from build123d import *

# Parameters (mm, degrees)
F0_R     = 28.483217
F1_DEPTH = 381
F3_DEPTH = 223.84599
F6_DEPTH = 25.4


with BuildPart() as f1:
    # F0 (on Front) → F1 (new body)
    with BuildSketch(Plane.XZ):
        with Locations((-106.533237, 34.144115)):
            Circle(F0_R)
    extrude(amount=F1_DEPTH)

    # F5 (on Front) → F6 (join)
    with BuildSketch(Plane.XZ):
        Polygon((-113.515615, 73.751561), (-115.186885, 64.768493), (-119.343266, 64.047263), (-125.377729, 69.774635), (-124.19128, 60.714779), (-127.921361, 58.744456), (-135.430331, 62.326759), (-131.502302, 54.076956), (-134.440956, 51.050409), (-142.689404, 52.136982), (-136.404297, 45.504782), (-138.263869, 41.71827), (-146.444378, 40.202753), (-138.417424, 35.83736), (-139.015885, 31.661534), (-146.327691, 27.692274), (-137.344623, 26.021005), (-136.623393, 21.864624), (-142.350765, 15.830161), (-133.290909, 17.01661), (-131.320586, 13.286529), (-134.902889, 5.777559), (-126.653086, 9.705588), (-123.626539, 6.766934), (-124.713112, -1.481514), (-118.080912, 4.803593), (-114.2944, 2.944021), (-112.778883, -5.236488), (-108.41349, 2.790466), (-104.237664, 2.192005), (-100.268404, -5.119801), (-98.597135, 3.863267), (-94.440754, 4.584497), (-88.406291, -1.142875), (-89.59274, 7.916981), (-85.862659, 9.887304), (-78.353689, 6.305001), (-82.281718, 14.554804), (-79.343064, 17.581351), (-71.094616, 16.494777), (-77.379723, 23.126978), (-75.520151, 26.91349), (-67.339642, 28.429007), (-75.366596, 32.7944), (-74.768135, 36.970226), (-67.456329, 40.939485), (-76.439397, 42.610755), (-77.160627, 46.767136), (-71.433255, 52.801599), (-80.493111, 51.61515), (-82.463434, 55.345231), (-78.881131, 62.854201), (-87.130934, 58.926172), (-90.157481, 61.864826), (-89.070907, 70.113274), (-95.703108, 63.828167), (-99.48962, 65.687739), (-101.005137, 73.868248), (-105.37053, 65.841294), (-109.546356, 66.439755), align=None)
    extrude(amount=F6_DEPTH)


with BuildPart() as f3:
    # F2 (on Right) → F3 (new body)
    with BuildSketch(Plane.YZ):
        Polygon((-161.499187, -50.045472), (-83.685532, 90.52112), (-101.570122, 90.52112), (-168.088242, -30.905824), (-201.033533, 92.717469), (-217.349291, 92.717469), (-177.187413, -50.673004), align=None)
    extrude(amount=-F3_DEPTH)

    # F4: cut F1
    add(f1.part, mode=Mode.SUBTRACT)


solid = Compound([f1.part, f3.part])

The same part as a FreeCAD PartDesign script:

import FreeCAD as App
import Part
import Sketcher
Q = App.Units.Quantity

doc = App.newDocument("Part")
body = doc.addObject("PartDesign::Body", "Body")

sketch1 = doc.addObject("Sketcher::SketchObject", "Sketch")
body.addObject(sketch1)
sketch1.AttachmentSupport = (doc.XZ_Plane, [""])
sketch1.MapMode = "FlatFace"
sketch1.addGeometry(Part.Circle(App.Vector(-106.533237, 34.144115, 0), App.Vector(0, 0, 1), 28.483217), False)
sketch1.addConstraint(Sketcher.Constraint("Diameter", 0, 56.966434))
sketch1.addConstraint(Sketcher.Constraint("DistanceX", 0, 3, -1, 1, 106.533237))
sketch1.addConstraint(Sketcher.Constraint("DistanceY", -1, 1, 0, 3, 34.144115))
pad1 = doc.addObject("PartDesign::Pad", "Pad")
body.addObject(pad1)
pad1.Profile = sketch1
pad1.Length = Q("15 in")

sketch2 = doc.addObject("Sketcher::SketchObject", "Sketch001")
body.addObject(sketch2)
sketch2.AttachmentSupport = (doc.XZ_Plane, [""])
sketch2.MapMode = "FlatFace"
sketch2.addGeometry(Part.LineSegment(App.Vector(-113.515615, 73.751561, 0), App.Vector(-115.186885, 64.768493, 0)), False)
sketch2.addGeometry(Part.LineSegment(App.Vector(-115.186885, 64.768493, 0), App.Vector(-119.343266, 64.047263, 0)), False)
sketch2.addGeometry(Part.LineSegment(App.Vector(-119.343266, 64.047263, 0), App.Vector(-125.377729, 69.774635, 0)), False)
sketch2.addGeometry(Part.LineSegment(App.Vector(-125.377729, 69.774635, 0), App.Vector(-124.19128, 60.714779, 0)), False)
sketch2.addGeometry(Part.LineSegment(App.Vector(-124.19128, 60.714779, 0), App.Vector(-127.921361, 58.744456, 0)), False)
sketch2.addGeometry(Part.LineSegment(App.Vector(-127.921361, 58.744456, 0), App.Vector(-135.430331, 62.326759, 0)), False)
sketch2.addGeometry(Part.LineSegment(App.Vector(-135.430331, 62.326759, 0), App.Vector(-131.502302, 54.076956, 0)), False)
sketch2.addGeometry(Part.LineSegment(App.Vector(-131.502302, 54.076956, 0), App.Vector(-134.440956, 51.050409, 0)), False)
sketch2.addGeometry(Part.LineSegment(App.Vector(-134.440956, 51.050409, 0), App.Vector(-142.689404, 52.136982, 0)), False)
sketch2.addGeometry(Part.LineSegment(App.Vector(-142.689404, 52.136982, 0), App.Vector(-136.404297, 45.504782, 0)), False)
sketch2.addGeometry(Part.LineSegment(App.Vector(-136.404297, 45.504782, 0), App.Vector(-138.263869, 41.71827, 0)), False)
sketch2.addGeometry(Part.LineSegment(App.Vector(-138.263869, 41.71827, 0), App.Vector(-146.444378, 40.202753, 0)), False)
sketch2.addGeometry(Part.LineSegment(App.Vector(-146.444378, 40.202753, 0), App.Vector(-138.417424, 35.83736, 0)), False)
sketch2.addGeometry(Part.LineSegment(App.Vector(-138.417424, 35.83736, 0), App.Vector(-139.015885, 31.661534, 0)), False)
sketch2.addGeometry(Part.LineSegment(App.Vector(-139.015885, 31.661534, 0), App.Vector(-146.327691, 27.692274, 0)), False)
sketch2.addGeometry(Part.LineSegment(App.Vector(-146.327691, 27.692274, 0), App.Vector(-137.344623, 26.021005, 0)), False)
sketch2.addGeometry(Part.LineSegment(App.Vector(-137.344623, 26.021005, 0), App.Vector(-136.623393, 21.864624, 0)), False)
sketch2.addGeometry(Part.LineSegment(App.Vector(-136.623393, 21.864624, 0), App.Vector(-142.350765, 15.830161, 0)), False)
sketch2.addGeometry(Part.LineSegment(App.Vector(-142.350765, 15.830161, 0), App.Vector(-133.290909, 17.01661, 0)), False)
sketch2.addGeometry(Part.LineSegment(App.Vector(-133.290909, 17.01661, 0), App.Vector(-131.320586, 13.286529, 0)), False)
sketch2.addGeometry(Part.LineSegment(App.Vector(-131.320586, 13.286529, 0), App.Vector(-134.902889, 5.777559, 0)), False)
sketch2.addGeometry(Part.LineSegment(App.Vector(-134.902889, 5.777559, 0), App.Vector(-126.653086, 9.705588, 0)), False)
sketch2.addGeometry(Part.LineSegment(App.Vector(-126.653086, 9.705588, 0), App.Vector(-123.626539, 6.766934, 0)), False)
sketch2.addGeometry(Part.LineSegment(App.Vector(-123.626539, 6.766934, 0), App.Vector(-124.713112, -1.481514, 0)), False)
sketch2.addGeometry(Part.LineSegment(App.Vector(-124.713112, -1.481514, 0), App.Vector(-118.080912, 4.803593, 0)), False)
sketch2.addGeometry(Part.LineSegment(App.Vector(-118.080912, 4.803593, 0), App.Vector(-114.2944, 2.944021, 0)), False)
sketch2.addGeometry(Part.LineSegment(App.Vector(-114.2944, 2.944021, 0), App.Vector(-112.778883, -5.236488, 0)), False)
sketch2.addGeometry(Part.LineSegment(App.Vector(-112.778883, -5.236488, 0), App.Vector(-108.41349, 2.790466, 0)), False)
sketch2.addGeometry(Part.LineSegment(App.Vector(-108.41349, 2.790466, 0), App.Vector(-104.237664, 2.192005, 0)), False)
sketch2.addGeometry(Part.LineSegment(App.Vector(-104.237664, 2.192005, 0), App.Vector(-100.268404, -5.119801, 0)), False)
sketch2.addGeometry(Part.LineSegment(App.Vector(-100.268404, -5.119801, 0), App.Vector(-98.597135, 3.863267, 0)), False)
sketch2.addGeometry(Part.LineSegment(App.Vector(-98.597135, 3.863267, 0), App.Vector(-94.440754, 4.584497, 0)), False)
sketch2.addGeometry(Part.LineSegment(App.Vector(-94.440754, 4.584497, 0), App.Vector(-88.406291, -1.142875, 0)), False)
sketch2.addGeometry(Part.LineSegment(App.Vector(-88.406291, -1.142875, 0), App.Vector(-89.59274, 7.916981, 0)), False)
sketch2.addGeometry(Part.LineSegment(App.Vector(-89.59274, 7.916981, 0), App.Vector(-85.862659, 9.887304, 0)), False)
sketch2.addGeometry(Part.LineSegment(App.Vector(-85.862659, 9.887304, 0), App.Vector(-78.353689, 6.305001, 0)), False)
sketch2.addGeometry(Part.LineSegment(App.Vector(-78.353689, 6.305001, 0), App.Vector(-82.281718, 14.554804, 0)), False)
sketch2.addGeometry(Part.LineSegment(App.Vector(-82.281718, 14.554804, 0), App.Vector(-79.343064, 17.581351, 0)), False)
sketch2.addGeometry(Part.LineSegment(App.Vector(-79.343064, 17.581351, 0), App.Vector(-71.094616, 16.494777, 0)), False)
sketch2.addGeometry(Part.LineSegment(App.Vector(-71.094616, 16.494777, 0), App.Vector(-77.379723, 23.126978, 0)), False)
sketch2.addGeometry(Part.LineSegment(App.Vector(-77.379723, 23.126978, 0), App.Vector(-75.520151, 26.91349, 0)), False)
sketch2.addGeometry(Part.LineSegment(App.Vector(-75.520151, 26.91349, 0), App.Vector(-67.339642, 28.429007, 0)), False)
sketch2.addGeometry(Part.LineSegment(App.Vector(-67.339642, 28.429007, 0), App.Vector(-75.366596, 32.7944, 0)), False)
sketch2.addGeometry(Part.LineSegment(App.Vector(-75.366596, 32.7944, 0), App.Vector(-74.768135, 36.970226, 0)), False)
sketch2.addGeometry(Part.LineSegment(App.Vector(-74.768135, 36.970226, 0), App.Vector(-67.456329, 40.939485, 0)), False)
sketch2.addGeometry(Part.LineSegment(App.Vector(-67.456329, 40.939485, 0), App.Vector(-76.439397, 42.610755, 0)), False)
sketch2.addGeometry(Part.LineSegment(App.Vector(-76.439397, 42.610755, 0), App.Vector(-77.160627, 46.767136, 0)), False)
sketch2.addGeometry(Part.LineSegment(App.Vector(-77.160627, 46.767136, 0), App.Vector(-71.433255, 52.801599, 0)), False)
sketch2.addGeometry(Part.LineSegment(App.Vector(-71.433255, 52.801599, 0), App.Vector(-80.493111, 51.61515, 0)), False)
sketch2.addGeometry(Part.LineSegment(App.Vector(-80.493111, 51.61515, 0), App.Vector(-82.463434, 55.345231, 0)), False)
sketch2.addGeometry(Part.LineSegment(App.Vector(-82.463434, 55.345231, 0), App.Vector(-78.881131, 62.854201, 0)), False)
sketch2.addGeometry(Part.LineSegment(App.Vector(-78.881131, 62.854201, 0), App.Vector(-87.130934, 58.926172, 0)), False)
sketch2.addGeometry(Part.LineSegment(App.Vector(-87.130934, 58.926172, 0), App.Vector(-90.157481, 61.864826, 0)), False)
sketch2.addGeometry(Part.LineSegment(App.Vector(-90.157481, 61.864826, 0), App.Vector(-89.070907, 70.113274, 0)), False)
sketch2.addGeometry(Part.LineSegment(App.Vector(-89.070907, 70.113274, 0), App.Vector(-95.703108, 63.828167, 0)), False)
sketch2.addGeometry(Part.LineSegment(App.Vector(-95.703108, 63.828167, 0), App.Vector(-99.48962, 65.687739, 0)), False)
sketch2.addGeometry(Part.LineSegment(App.Vector(-99.48962, 65.687739, 0), App.Vector(-101.005137, 73.868248, 0)), False)
sketch2.addGeometry(Part.LineSegment(App.Vector(-101.005137, 73.868248, 0), App.Vector(-105.37053, 65.841294, 0)), False)
sketch2.addGeometry(Part.LineSegment(App.Vector(-105.37053, 65.841294, 0), App.Vector(-109.546356, 66.439755, 0)), False)
sketch2.addGeometry(Part.LineSegment(App.Vector(-109.546356, 66.439755, 0), App.Vector(-113.515615, 73.751561, 0)), False)
sketch2.addConstraint(Sketcher.Constraint("Coincident", 0, 2, 1, 1))
sketch2.addConstraint(Sketcher.Constraint("Coincident", 1, 2, 2, 1))
sketch2.addConstraint(Sketcher.Constraint("Coincident", 2, 2, 3, 1))
sketch2.addConstraint(Sketcher.Constraint("Coincident", 3, 2, 4, 1))
sketch2.addConstraint(Sketcher.Constraint("Coincident", 4, 2, 5, 1))
sketch2.addConstraint(Sketcher.Constraint("Coincident", 5, 2, 6, 1))
sketch2.addConstraint(Sketcher.Constraint("Coincident", 6, 2, 7, 1))
sketch2.addConstraint(Sketcher.Constraint("Coincident", 7, 2, 8, 1))
sketch2.addConstraint(Sketcher.Constraint("Coincident", 8, 2, 9, 1))
sketch2.addConstraint(Sketcher.Constraint("Coincident", 9, 2, 10, 1))
sketch2.addConstraint(Sketcher.Constraint("Coincident", 10, 2, 11, 1))
sketch2.addConstraint(Sketcher.Constraint("Coincident", 11, 2, 12, 1))
sketch2.addConstraint(Sketcher.Constraint("Coincident", 12, 2, 13, 1))
sketch2.addConstraint(Sketcher.Constraint("Coincident", 13, 2, 14, 1))
sketch2.addConstraint(Sketcher.Constraint("Coincident", 14, 2, 15, 1))
sketch2.addConstraint(Sketcher.Constraint("Coincident", 15, 2, 16, 1))
sketch2.addConstraint(Sketcher.Constraint("Coincident", 16, 2, 17, 1))
sketch2.addConstraint(Sketcher.Constraint("Coincident", 17, 2, 18, 1))
sketch2.addConstraint(Sketcher.Constraint("Coincident", 18, 2, 19, 1))
sketch2.addConstraint(Sketcher.Constraint("Coincident", 19, 2, 20, 1))
sketch2.addConstraint(Sketcher.Constraint("Coincident", 20, 2, 21, 1))
sketch2.addConstraint(Sketcher.Constraint("Coincident", 21, 2, 22, 1))
sketch2.addConstraint(Sketcher.Constraint("Coincident", 22, 2, 23, 1))
sketch2.addConstraint(Sketcher.Constraint("Coincident", 23, 2, 24, 1))
sketch2.addConstraint(Sketcher.Constraint("Coincident", 24, 2, 25, 1))
sketch2.addConstraint(Sketcher.Constraint("Coincident", 25, 2, 26, 1))
sketch2.addConstraint(Sketcher.Constraint("Coincident", 26, 2, 27, 1))
sketch2.addConstraint(Sketcher.Constraint("Coincident", 27, 2, 28, 1))
sketch2.addConstraint(Sketcher.Constraint("Coincident", 28, 2, 29, 1))
sketch2.addConstraint(Sketcher.Constraint("Coincident", 29, 2, 30, 1))
sketch2.addConstraint(Sketcher.Constraint("Coincident", 30, 2, 31, 1))
sketch2.addConstraint(Sketcher.Constraint("Coincident", 31, 2, 32, 1))
sketch2.addConstraint(Sketcher.Constraint("Coincident", 32, 2, 33, 1))
sketch2.addConstraint(Sketcher.Constraint("Coincident", 33, 2, 34, 1))
sketch2.addConstraint(Sketcher.Constraint("Coincident", 34, 2, 35, 1))
sketch2.addConstraint(Sketcher.Constraint("Coincident", 35, 2, 36, 1))
sketch2.addConstraint(Sketcher.Constraint("Coincident", 36, 2, 37, 1))
sketch2.addConstraint(Sketcher.Constraint("Coincident", 37, 2, 38, 1))
sketch2.addConstraint(Sketcher.Constraint("Coincident", 38, 2, 39, 1))
sketch2.addConstraint(Sketcher.Constraint("Coincident", 39, 2, 40, 1))
sketch2.addConstraint(Sketcher.Constraint("Coincident", 40, 2, 41, 1))
sketch2.addConstraint(Sketcher.Constraint("Coincident", 41, 2, 42, 1))
sketch2.addConstraint(Sketcher.Constraint("Coincident", 42, 2, 43, 1))
sketch2.addConstraint(Sketcher.Constraint("Coincident", 43, 2, 44, 1))
sketch2.addConstraint(Sketcher.Constraint("Coincident", 44, 2, 45, 1))
sketch2.addConstraint(Sketcher.Constraint("Coincident", 45, 2, 46, 1))
sketch2.addConstraint(Sketcher.Constraint("Coincident", 46, 2, 47, 1))
sketch2.addConstraint(Sketcher.Constraint("Coincident", 47, 2, 48, 1))
sketch2.addConstraint(Sketcher.Constraint("Coincident", 48, 2, 49, 1))
sketch2.addConstraint(Sketcher.Constraint("Coincident", 49, 2, 50, 1))
sketch2.addConstraint(Sketcher.Constraint("Coincident", 50, 2, 51, 1))
sketch2.addConstraint(Sketcher.Constraint("Coincident", 51, 2, 52, 1))
sketch2.addConstraint(Sketcher.Constraint("Coincident", 52, 2, 53, 1))
sketch2.addConstraint(Sketcher.Constraint("Coincident", 53, 2, 54, 1))
sketch2.addConstraint(Sketcher.Constraint("Coincident", 54, 2, 55, 1))
sketch2.addConstraint(Sketcher.Constraint("Coincident", 55, 2, 56, 1))
sketch2.addConstraint(Sketcher.Constraint("Coincident", 56, 2, 57, 1))
sketch2.addConstraint(Sketcher.Constraint("Coincident", 57, 2, 58, 1))
sketch2.addConstraint(Sketcher.Constraint("Coincident", 58, 2, 59, 1))
sketch2.addConstraint(Sketcher.Constraint("Coincident", 59, 2, 0, 1))
sketch2.addConstraint(Sketcher.Constraint("Perpendicular", 0, 15))
sketch2.addConstraint(Sketcher.Constraint("Perpendicular", 1, 16))
sketch2.addConstraint(Sketcher.Constraint("Perpendicular", 2, 17))
sketch2.addConstraint(Sketcher.Constraint("Perpendicular", 3, 18))
sketch2.addConstraint(Sketcher.Constraint("Perpendicular", 4, 19))
sketch2.addConstraint(Sketcher.Constraint("Perpendicular", 5, 20))
sketch2.addConstraint(Sketcher.Constraint("Perpendicular", 6, 21))
sketch2.addConstraint(Sketcher.Constraint("Perpendicular", 7, 22))
sketch2.addConstraint(Sketcher.Constraint("Perpendicular", 8, 23))
sketch2.addConstraint(Sketcher.Constraint("Perpendicular", 9, 24))
sketch2.addConstraint(Sketcher.Constraint("Perpendicular", 10, 25))
sketch2.addConstraint(Sketcher.Constraint("Perpendicular", 11, 26))
sketch2.addConstraint(Sketcher.Constraint("Perpendicular", 12, 27))
sketch2.addConstraint(Sketcher.Constraint("Perpendicular", 13, 28))
sketch2.addConstraint(Sketcher.Constraint("Perpendicular", 14, 29))
sketch2.addConstraint(Sketcher.Constraint("Perpendicular", 15, 30))
sketch2.addConstraint(Sketcher.Constraint("Perpendicular", 16, 31))
sketch2.addConstraint(Sketcher.Constraint("Perpendicular", 17, 32))
sketch2.addConstraint(Sketcher.Constraint("Perpendicular", 18, 33))
sketch2.addConstraint(Sketcher.Constraint("Perpendicular", 19, 34))
sketch2.addConstraint(Sketcher.Constraint("Perpendicular", 20, 35))
sketch2.addConstraint(Sketcher.Constraint("Perpendicular", 21, 36))
sketch2.addConstraint(Sketcher.Constraint("Perpendicular", 22, 37))
sketch2.addConstraint(Sketcher.Constraint("Perpendicular", 23, 38))
sketch2.addConstraint(Sketcher.Constraint("Perpendicular", 24, 39))
sketch2.addConstraint(Sketcher.Constraint("Perpendicular", 25, 40))
sketch2.addConstraint(Sketcher.Constraint("Perpendicular", 26, 41))
sketch2.addConstraint(Sketcher.Constraint("Perpendicular", 27, 42))
sketch2.addConstraint(Sketcher.Constraint("Perpendicular", 28, 43))
sketch2.addConstraint(Sketcher.Constraint("Perpendicular", 29, 44))
sketch2.addConstraint(Sketcher.Constraint("Perpendicular", 30, 45))
sketch2.addConstraint(Sketcher.Constraint("Perpendicular", 31, 46))
sketch2.addConstraint(Sketcher.Constraint("Perpendicular", 32, 47))
sketch2.addConstraint(Sketcher.Constraint("Perpendicular", 33, 48))
sketch2.addConstraint(Sketcher.Constraint("Perpendicular", 34, 49))
sketch2.addConstraint(Sketcher.Constraint("Perpendicular", 35, 50))
sketch2.addConstraint(Sketcher.Constraint("Perpendicular", 36, 51))
sketch2.addConstraint(Sketcher.Constraint("Perpendicular", 37, 52))
sketch2.addConstraint(Sketcher.Constraint("Perpendicular", 38, 53))
sketch2.addConstraint(Sketcher.Constraint("Perpendicular", 39, 54))
sketch2.addConstraint(Sketcher.Constraint("Perpendicular", 40, 55))
sketch2.addConstraint(Sketcher.Constraint("Perpendicular", 41, 56))
sketch2.addConstraint(Sketcher.Constraint("Perpendicular", 42, 57))
sketch2.addConstraint(Sketcher.Constraint("Perpendicular", 43, 58))
sketch2.addConstraint(Sketcher.Constraint("Perpendicular", 44, 59))
sketch2.addConstraint(Sketcher.Constraint("Equal", 0, 3))
sketch2.addConstraint(Sketcher.Constraint("Equal", 1, 4))
sketch2.addConstraint(Sketcher.Constraint("Equal", 2, 5))
sketch2.addConstraint(Sketcher.Constraint("Equal", 3, 6))
sketch2.addConstraint(Sketcher.Constraint("Equal", 4, 7))
sketch2.addConstraint(Sketcher.Constraint("Equal", 5, 8))
sketch2.addConstraint(Sketcher.Constraint("Equal", 6, 9))
sketch2.addConstraint(Sketcher.Constraint("Equal", 7, 10))
sketch2.addConstraint(Sketcher.Constraint("Equal", 8, 11))
sketch2.addConstraint(Sketcher.Constraint("Equal", 9, 12))
sketch2.addConstraint(Sketcher.Constraint("Equal", 10, 13))
sketch2.addConstraint(Sketcher.Constraint("Equal", 11, 14))
sketch2.addConstraint(Sketcher.Constraint("Equal", 12, 15))
sketch2.addConstraint(Sketcher.Constraint("Equal", 13, 16))
sketch2.addConstraint(Sketcher.Constraint("Equal", 14, 17))
sketch2.addConstraint(Sketcher.Constraint("Equal", 15, 18))
sketch2.addConstraint(Sketcher.Constraint("Equal", 16, 19))
sketch2.addConstraint(Sketcher.Constraint("Equal", 17, 20))
sketch2.addConstraint(Sketcher.Constraint("Equal", 18, 21))
sketch2.addConstraint(Sketcher.Constraint("Equal", 19, 22))
sketch2.addConstraint(Sketcher.Constraint("Equal", 20, 23))
sketch2.addConstraint(Sketcher.Constraint("Equal", 21, 24))
sketch2.addConstraint(Sketcher.Constraint("Equal", 22, 25))
sketch2.addConstraint(Sketcher.Constraint("Equal", 23, 26))
sketch2.addConstraint(Sketcher.Constraint("Equal", 24, 27))
sketch2.addConstraint(Sketcher.Constraint("Equal", 25, 28))
sketch2.addConstraint(Sketcher.Constraint("Equal", 26, 29))
sketch2.addConstraint(Sketcher.Constraint("Equal", 27, 30))
sketch2.addConstraint(Sketcher.Constraint("Equal", 28, 31))
sketch2.addConstraint(Sketcher.Constraint("Equal", 29, 32))
sketch2.addConstraint(Sketcher.Constraint("Equal", 30, 33))
sketch2.addConstraint(Sketcher.Constraint("Equal", 31, 34))
sketch2.addConstraint(Sketcher.Constraint("Equal", 32, 35))
sketch2.addConstraint(Sketcher.Constraint("Equal", 33, 36))
sketch2.addConstraint(Sketcher.Constraint("Equal", 34, 37))
sketch2.addConstraint(Sketcher.Constraint("Equal", 35, 38))
sketch2.addConstraint(Sketcher.Constraint("Equal", 36, 39))
sketch2.addConstraint(Sketcher.Constraint("Equal", 37, 40))
sketch2.addConstraint(Sketcher.Constraint("Equal", 38, 41))
sketch2.addConstraint(Sketcher.Constraint("Equal", 39, 42))
sketch2.addConstraint(Sketcher.Constraint("Equal", 40, 43))
sketch2.addConstraint(Sketcher.Constraint("Equal", 41, 44))
sketch2.addConstraint(Sketcher.Constraint("Equal", 42, 45))
sketch2.addConstraint(Sketcher.Constraint("Equal", 43, 46))
sketch2.addConstraint(Sketcher.Constraint("Equal", 44, 47))
sketch2.addConstraint(Sketcher.Constraint("Equal", 45, 48))
sketch2.addConstraint(Sketcher.Constraint("Equal", 46, 49))
sketch2.addConstraint(Sketcher.Constraint("Equal", 47, 50))
sketch2.addConstraint(Sketcher.Constraint("Equal", 48, 51))
sketch2.addConstraint(Sketcher.Constraint("Equal", 49, 52))
sketch2.addConstraint(Sketcher.Constraint("Equal", 50, 53))
sketch2.addConstraint(Sketcher.Constraint("Equal", 51, 54))
sketch2.addConstraint(Sketcher.Constraint("Equal", 52, 55))
sketch2.addConstraint(Sketcher.Constraint("Equal", 53, 56))
sketch2.addConstraint(Sketcher.Constraint("Equal", 54, 57))
sketch2.addConstraint(Sketcher.Constraint("DistanceY", 3, 2, 1, 2, Q("0.1312002 in")))
sketch2.addConstraint(Sketcher.Constraint("DistanceX", 6, 2, -1, 1, 131.502302))
sketch2.addConstraint(Sketcher.Constraint("DistanceX", 25, 2, -1, 1, 114.2944))
sketch2.addConstraint(Sketcher.Constraint("DistanceY", 29, 2, -1, 1, 5.119801))
sketch2.addConstraint(Sketcher.Constraint("DistanceY", -1, 1, 35, 2, 6.305001))
sketch2.addConstraint(Sketcher.Constraint("DistanceY", -1, 1, 42, 2, 32.7944))
sketch2.addConstraint(Sketcher.Constraint("DistanceY", -1, 1, 47, 2, 52.801599))
sketch2.addConstraint(Sketcher.Constraint("DistanceY", -1, 1, 50, 2, 62.854201))
sketch2.addConstraint(Sketcher.Constraint("DistanceY", 6, 2, 4, 2, 4.6675))
sketch2.addConstraint(Sketcher.Constraint("DistanceY", 9, 2, 8, 2, 6.6322))
sketch2.addConstraint(Sketcher.Constraint("DistanceX", 12, 2, 15, 2, 1.072801))
sketch2.addConstraint(Sketcher.Constraint("DistanceX", 13, 2, 19, 2, 7.695299))
sketch2.addConstraint(Sketcher.Constraint("DistanceX", 36, 2, 38, 2, 11.187102))
sketch2.addConstraint(Sketcher.Constraint("DistanceX", 46, 2, 44, 2, 9.704298))
sketch2.addConstraint(Sketcher.Constraint("Distance", 7, 4.218492))
sketch2.addConstraint(Sketcher.Constraint("DistanceX", 2, 2, -1, 1, 125.377729))
sketch2.addConstraint(Sketcher.Constraint("DistanceX", 3, 2, -1, 1, 124.19128))
sketch2.addConstraint(Sketcher.Constraint("DistanceY", -1, 1, 3, 2, 60.714779))
sketch2.addConstraint(Sketcher.Constraint("DistanceX", 4, 2, -1, 1, 127.921361))
sketch2.addConstraint(Sketcher.Constraint("DistanceY", -1, 1, 7, 2, 51.050409))
pad2 = doc.addObject("PartDesign::Pad", "Pad001")
body.addObject(pad2)
pad2.Profile = sketch2
pad2.Length = Q("1 in")
body2 = doc.addObject("PartDesign::Body", "Body001")

sketch3 = doc.addObject("Sketcher::SketchObject", "Sketch002")
body2.addObject(sketch3)
sketch3.AttachmentSupport = (doc.getObject("YZ_Plane001"), [""])
sketch3.MapMode = "FlatFace"
sketch3.addGeometry(Part.LineSegment(App.Vector(-161.499187, -50.045472, 0), App.Vector(-83.685532, 90.52112, 0)), False)
sketch3.addGeometry(Part.LineSegment(App.Vector(-83.685532, 90.52112, 0), App.Vector(-101.570122, 90.52112, 0)), False)
sketch3.addGeometry(Part.LineSegment(App.Vector(-101.570122, 90.52112, 0), App.Vector(-168.088242, -30.905824, 0)), False)
sketch3.addGeometry(Part.LineSegment(App.Vector(-168.088242, -30.905824, 0), App.Vector(-201.033533, 92.717469, 0)), False)
sketch3.addGeometry(Part.LineSegment(App.Vector(-201.033533, 92.717469, 0), App.Vector(-217.349291, 92.717469, 0)), False)
sketch3.addGeometry(Part.LineSegment(App.Vector(-217.349291, 92.717469, 0), App.Vector(-177.187413, -50.673004, 0)), False)
sketch3.addGeometry(Part.LineSegment(App.Vector(-177.187413, -50.673004, 0), App.Vector(-161.499187, -50.045472, 0)), False)
sketch3.addConstraint(Sketcher.Constraint("Coincident", 0, 2, 1, 1))
sketch3.addConstraint(Sketcher.Constraint("Coincident", 1, 2, 2, 1))
sketch3.addConstraint(Sketcher.Constraint("Coincident", 2, 2, 3, 1))
sketch3.addConstraint(Sketcher.Constraint("Coincident", 3, 2, 4, 1))
sketch3.addConstraint(Sketcher.Constraint("Coincident", 4, 2, 5, 1))
sketch3.addConstraint(Sketcher.Constraint("Coincident", 5, 2, 6, 1))
sketch3.addConstraint(Sketcher.Constraint("Coincident", 6, 2, 0, 1))
sketch3.addConstraint(Sketcher.Constraint("Horizontal", 1))
sketch3.addConstraint(Sketcher.Constraint("Horizontal", 4))
sketch3.addConstraint(Sketcher.Constraint("DistanceX", 3, 2, 0, 2, Q("4.62 in")))
sketch3.addConstraint(Sketcher.Constraint("DistanceY", 5, 2, -1, 1, Q("1.9950002 in")))
sketch3.addConstraint(Sketcher.Constraint("DistanceX", 1, 2, 1, 1, 17.88459))
sketch3.addConstraint(Sketcher.Constraint("Distance", 5, 148.908711))
sketch3.addConstraint(Sketcher.Constraint("Distance", 6, 15.700772))
sketch3.addConstraint(Sketcher.Constraint("DistanceX", 4, 2, 4, 1, 16.315758))
sketch3.addConstraint(Sketcher.Constraint("DistanceX", 0, 2, -1, 1, 83.685532))
sketch3.addConstraint(Sketcher.Constraint("DistanceY", -1, 1, 0, 2, 90.52112))
sketch3.addConstraint(Sketcher.Constraint("DistanceX", 2, 2, -1, 1, 168.088242))
sketch3.addConstraint(Sketcher.Constraint("DistanceY", -1, 1, 3, 2, 92.717469))
sketch3.addConstraint(Sketcher.Constraint("DistanceY", 6, 2, -1, 1, 50.045472))
sketch3.addConstraint(Sketcher.Constraint("DistanceY", 5, 2, 2, 2, 19.76718))
pad3 = doc.addObject("PartDesign::Pad", "Pad002")
body2.addObject(pad3)
pad3.Profile = sketch3
pad3.Length = 223.84599
pad3.Reversed = True
doc.recompute()

body3 = doc.addObject("PartDesign::Body", "Body002")
body3.BaseFeature = body
boolean = doc.addObject("PartDesign::Boolean", "Boolean")
body2.addObject(boolean)
boolean.Type = "Cut"
boolean.addObjects([body3])
doc.recompute()

doc.recompute()
